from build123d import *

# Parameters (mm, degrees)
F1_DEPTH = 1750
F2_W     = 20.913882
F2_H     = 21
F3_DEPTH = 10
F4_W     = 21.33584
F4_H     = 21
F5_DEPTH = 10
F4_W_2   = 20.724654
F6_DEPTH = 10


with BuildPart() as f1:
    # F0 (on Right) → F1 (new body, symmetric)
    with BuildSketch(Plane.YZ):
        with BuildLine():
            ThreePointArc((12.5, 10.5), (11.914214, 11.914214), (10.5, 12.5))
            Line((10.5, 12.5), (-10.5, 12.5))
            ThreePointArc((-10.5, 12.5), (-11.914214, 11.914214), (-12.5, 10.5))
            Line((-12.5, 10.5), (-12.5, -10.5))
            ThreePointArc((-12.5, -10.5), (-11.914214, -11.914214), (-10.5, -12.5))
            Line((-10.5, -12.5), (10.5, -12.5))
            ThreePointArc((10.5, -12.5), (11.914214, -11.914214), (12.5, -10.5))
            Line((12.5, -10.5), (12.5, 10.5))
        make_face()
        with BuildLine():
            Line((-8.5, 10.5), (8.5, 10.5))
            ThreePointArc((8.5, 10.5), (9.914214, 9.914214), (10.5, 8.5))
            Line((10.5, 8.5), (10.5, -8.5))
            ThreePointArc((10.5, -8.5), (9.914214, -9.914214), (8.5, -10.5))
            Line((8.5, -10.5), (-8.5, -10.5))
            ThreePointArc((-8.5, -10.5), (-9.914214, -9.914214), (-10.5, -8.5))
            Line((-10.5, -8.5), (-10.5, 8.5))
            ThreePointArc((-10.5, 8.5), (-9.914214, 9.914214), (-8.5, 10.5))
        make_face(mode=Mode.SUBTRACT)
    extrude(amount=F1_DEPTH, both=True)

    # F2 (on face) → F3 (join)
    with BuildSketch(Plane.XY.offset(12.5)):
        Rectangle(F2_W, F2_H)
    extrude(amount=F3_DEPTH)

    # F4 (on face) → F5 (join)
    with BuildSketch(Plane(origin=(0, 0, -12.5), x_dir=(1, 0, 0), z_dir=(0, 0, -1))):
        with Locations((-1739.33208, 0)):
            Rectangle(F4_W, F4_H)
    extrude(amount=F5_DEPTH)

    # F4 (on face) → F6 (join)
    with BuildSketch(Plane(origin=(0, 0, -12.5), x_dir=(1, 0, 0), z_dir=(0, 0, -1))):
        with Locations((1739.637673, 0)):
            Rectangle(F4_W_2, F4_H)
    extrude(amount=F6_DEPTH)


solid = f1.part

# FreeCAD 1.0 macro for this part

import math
import FreeCAD as App
import Part
import Sketcher

V = App.Vector

doc = App.newDocument("Part")
params = doc.addObject("Spreadsheet::Sheet", "Params")
for row, (alias, value) in enumerate([
    ("sketch1_radius", "1.999999 mm"),
    ("sketch1_width", "21 mm"),
    ("pad1_length", "3500 mm"),
    ("sketch2_height", "21 mm"),
    ("pad2_length", "10 mm"),
    ("sketch3_height", "21 mm"),
    ("pad3_length", "10 mm"),
    ("sketch4_height", "21 mm"),
    ("pad4_length", "10 mm"),
], start=1):
    params.set(f"A{row}", alias)
    params.set(f"B{row}", "=" + value)
    params.setAlias(f"B{row}", alias)

body = doc.addObject("PartDesign::Body", "Body")

sketch1 = doc.addObject("Sketcher::SketchObject", "Sketch")
body.addObject(sketch1)
sketch1.AttachmentSupport = (doc.YZ_Plane, [""])
sketch1.MapMode = "FlatFace"
sketch1.addGeometry(Part.ArcOfCircle(Part.Circle(V(10.500001, 10.500001, 0), V(0, 0, 1), 1.999999), math.radians(-0.000043), math.radians(90.000043)), False)
sketch1.addGeometry(Part.LineSegment(V(10.5, 12.5, 0), V(-10.5, 12.5, 0)), False)
sketch1.addGeometry(Part.ArcOfCircle(Part.Circle(V(-10.500001, 10.500001, 0), V(0, 0, 1), 1.999999), math.radians(89.999957), math.radians(180.000043)), False)
sketch1.addGeometry(Part.LineSegment(V(-12.5, 10.5, 0), V(-12.5, -10.5, 0)), False)
sketch1.addGeometry(Part.ArcOfCircle(Part.Circle(V(-10.500001, -10.500001, 0), V(0, 0, 1), 1.999999), math.radians(179.999957), math.radians(270.000043)), False)
sketch1.addGeometry(Part.LineSegment(V(-10.5, -12.5, 0), V(10.5, -12.5, 0)), False)
sketch1.addGeometry(Part.ArcOfCircle(Part.Circle(V(10.500001, -10.500001, 0), V(0, 0, 1), 1.999999), math.radians(-90.000043), math.radians(0.000043)), False)
sketch1.addGeometry(Part.LineSegment(V(12.5, -10.5, 0), V(12.5, 10.5, 0)), False)
sketch1.addGeometry(Part.ArcOfCircle(Part.Circle(V(-8.500001, 8.500001, 0), V(0, 0, 1), 1.999999), math.radians(89.999957), math.radians(180.000043)), False)
sketch1.addGeometry(Part.LineSegment(V(-8.5, 10.5, 0), V(8.5, 10.5, 0)), False)
sketch1.addGeometry(Part.ArcOfCircle(Part.Circle(V(8.500001, 8.500001, 0), V(0, 0, 1), 1.999999), math.radians(-0.000043), math.radians(90.000043)), False)
sketch1.addGeometry(Part.LineSegment(V(10.5, 8.5, 0), V(10.5, -8.5, 0)), False)
sketch1.addGeometry(Part.ArcOfCircle(Part.Circle(V(8.500001, -8.500001, 0), V(0, 0, 1), 1.999999), math.radians(-90.000043), math.radians(0.000043)), False)
sketch1.addGeometry(Part.LineSegment(V(8.5, -10.5, 0), V(-8.5, -10.5, 0)), False)
sketch1.addGeometry(Part.ArcOfCircle(Part.Circle(V(-8.500001, -8.500001, 0), V(0, 0, 1), 1.999999), math.radians(179.999957), math.radians(270.000043)), False)
sketch1.addGeometry(Part.LineSegment(V(-10.5, -8.5, 0), V(-10.5, 8.5, 0)), False)
sketch1.addConstraint(Sketcher.Constraint("Tangent", 0, 2, 1, 1))
sketch1.addConstraint(Sketcher.Constraint("Tangent", 1, 2, 2, 1))
sketch1.addConstraint(Sketcher.Constraint("Tangent", 2, 2, 3, 1))
sketch1.addConstraint(Sketcher.Constraint("Tangent", 3, 2, 4, 1))
sketch1.addConstraint(Sketcher.Constraint("Tangent", 4, 2, 5, 1))
sketch1.addConstraint(Sketcher.Constraint("Tangent", 5, 2, 6, 1))
sketch1.addConstraint(Sketcher.Constraint("Tangent", 6, 2, 7, 1))
sketch1.addConstraint(Sketcher.Constraint("Tangent", 7, 2, 0, 1))
sketch1.addConstraint(Sketcher.Constraint("Tangent", 8, 1, 9, 1))
sketch1.addConstraint(Sketcher.Constraint("Tangent", 9, 2, 10, 2))
sketch1.addConstraint(Sketcher.Constraint("Tangent", 10, 1, 11, 1))
sketch1.addConstraint(Sketcher.Constraint("Tangent", 11, 2, 12, 2))
sketch1.addConstraint(Sketcher.Constraint("Tangent", 12, 1, 13, 1))
sketch1.addConstraint(Sketcher.Constraint("Tangent", 13, 2, 14, 2))
sketch1.addConstraint(Sketcher.Constraint("Tangent", 14, 1, 15, 1))
sketch1.addConstraint(Sketcher.Constraint("Tangent", 15, 2, 8, 2))
sketch1.addConstraint(Sketcher.Constraint("Horizontal", 1))
sketch1.addConstraint(Sketcher.Constraint("Vertical", 3))
sketch1.addConstraint(Sketcher.Constraint("Horizontal", 5))
sketch1.addConstraint(Sketcher.Constraint("Vertical", 7))
sketch1.addConstraint(Sketcher.Constraint("Horizontal", 9))
sketch1.addConstraint(Sketcher.Constraint("Vertical", 11))
sketch1.addConstraint(Sketcher.Constraint("Horizontal", 13))
sketch1.addConstraint(Sketcher.Constraint("Vertical", 15))
sketch1.addConstraint(Sketcher.Constraint("Equal", 0, 2))
sketch1.addConstraint(Sketcher.Constraint("Equal", 2, 4))
sketch1.addConstraint(Sketcher.Constraint("Equal", 4, 6))
sketch1.addConstraint(Sketcher.Constraint("Equal", 6, 8))
sketch1.addConstraint(Sketcher.Constraint("Equal", 8, 10))
sketch1.addConstraint(Sketcher.Constraint("Equal", 10, 12))
sketch1.addConstraint(Sketcher.Constraint("Equal", 12, 14))
sketch1.addConstraint(Sketcher.Constraint("Symmetric", 0, 3, 4, 3, -1, 1))
sketch1.addConstraint(Sketcher.Constraint("Symmetric", 8, 3, 12, 3, -1, 1))
sketch1.addConstraint(Sketcher.Constraint("Horizontal", 7, 2, 8, 1))
sketch1.addConstraint(Sketcher.Constraint("Vertical", 5, 2, 10, 1))
sketch1.addConstraint(Sketcher.Constraint("Equal", 5, 3))
sketch1.addConstraint(Sketcher.Constraint("Radius", 0, 1.999999))
sketch1.addConstraint(Sketcher.Constraint("DistanceX", 1, 2, 1, 1, 21.0))
sketch1.setExpression("Constraints[36]", "Params.sketch1_radius")
sketch1.setExpression("Constraints[37]", "Params.sketch1_width")
pad1 = doc.addObject("PartDesign::Pad", "Pad")
body.addObject(pad1)
pad1.Profile = sketch1
pad1.setExpression("Length", "Params.pad1_length")
pad1.Midplane = True

sketch2 = doc.addObject("Sketcher::SketchObject", "Sketch001")
body.addObject(sketch2)
sketch2.AttachmentSupport = (doc.XY_Plane, [""])
sketch2.MapMode = "FlatFace"
sketch2.AttachmentOffset = App.Placement(V(0, 0, 12.5), App.Rotation())
sketch2.addGeometry(Part.LineSegment(V(-10.456941, 10.5, 0), V(-10.456941, -10.5, 0)), False)
sketch2.addGeometry(Part.LineSegment(V(-10.456941, -10.5, 0), V(10.456941, -10.5, 0)), False)
sketch2.addGeometry(Part.LineSegment(V(10.456941, -10.5, 0), V(10.456941, 10.5, 0)), False)
sketch2.addGeometry(Part.LineSegment(V(10.456941, 10.5, 0), V(-10.456941, 10.5, 0)), False)
sketch2.addConstraint(Sketcher.Constraint("Coincident", 0, 2, 1, 1))
sketch2.addConstraint(Sketcher.Constraint("Coincident", 1, 2, 2, 1))
sketch2.addConstraint(Sketcher.Constraint("Coincident", 2, 2, 3, 1))
sketch2.addConstraint(Sketcher.Constraint("Coincident", 3, 2, 0, 1))
sketch2.addConstraint(Sketcher.Constraint("Vertical", 0))
sketch2.addConstraint(Sketcher.Constraint("Horizontal", 1))
sketch2.addConstraint(Sketcher.Constraint("Vertical", 2))
sketch2.addConstraint(Sketcher.Constraint("Horizontal", 3))
sketch2.addConstraint(Sketcher.Constraint("Symmetric", 0, 2, 2, 2, -1, 1))
sketch2.addConstraint(Sketcher.Constraint("DistanceY", 0, 2, 0, 1, 21.0))
sketch2.addConstraint(Sketcher.Constraint("DistanceX", 1, 1, 1, 2, 20.913882))
sketch2.setExpression("Constraints[9]", "Params.sketch2_height")
pad2 = doc.addObject("PartDesign::Pad", "Pad001")
body.addObject(pad2)
pad2.Profile = sketch2
pad2.setExpression("Length", "Params.pad2_length")

sketch3 = doc.addObject("Sketcher::SketchObject", "Sketch002")
body.addObject(sketch3)
sketch3.AttachmentSupport = (doc.XY_Plane, [""])
sketch3.MapMode = "FlatFace"
sketch3.AttachmentOffset = App.Placement(V(0, 0, -12.5), App.Rotation())
sketch3.addGeometry(Part.LineSegment(V(-1750, -10.5, 0), V(-1750, 10.5, 0)), False)
sketch3.addGeometry(Part.LineSegment(V(-1750, 10.5, 0), V(-1728.66416, 10.5, 0)), False)
sketch3.addGeometry(Part.LineSegment(V(-1728.66416, 10.5, 0), V(-1728.66416, -10.5, 0)), False)
sketch3.addGeometry(Part.LineSegment(V(-1728.66416, -10.5, 0), V(-1750, -10.5, 0)), False)
sketch3.addConstraint(Sketcher.Constraint("Coincident", 0, 2, 1, 1))
sketch3.addConstraint(Sketcher.Constraint("Coincident", 1, 2, 2, 1))
sketch3.addConstraint(Sketcher.Constraint("Coincident", 2, 2, 3, 1))
sketch3.addConstraint(Sketcher.Constraint("Coincident", 3, 2, 0, 1))
sketch3.addConstraint(Sketcher.Constraint("Vertical", 0))
sketch3.addConstraint(Sketcher.Constraint("Horizontal", 1))
sketch3.addConstraint(Sketcher.Constraint("Vertical", 2))
sketch3.addConstraint(Sketcher.Constraint("Horizontal", 3))
sketch3.addConstraint(Sketcher.Constraint("DistanceY", 0, 1, 0, 2, 21.0))
sketch3.addConstraint(Sketcher.Constraint("DistanceX", 0, 2, -1, 1, 1750.0))
sketch3.addConstraint(Sketcher.Constraint("DistanceY", -1, 1, 0, 2, 10.5))
sketch3.addConstraint(Sketcher.Constraint("DistanceX", 1, 1, 1, 2, 21.33584))
sketch3.setExpression("Constraints[8]", "Params.sketch3_height")
pad3 = doc.addObject("PartDesign::Pad", "Pad002")
body.addObject(pad3)
pad3.Profile = sketch3
pad3.setExpression("Length", "Params.pad3_length")
pad3.Reversed = True

sketch4 = doc.addObject("Sketcher::SketchObject", "Sketch003")
body.addObject(sketch4)
sketch4.AttachmentSupport = (doc.XY_Plane, [""])
sketch4.MapMode = "FlatFace"
sketch4.AttachmentOffset = App.Placement(V(0, 0, -12.5), App.Rotation())
sketch4.addGeometry(Part.LineSegment(V(1729.275346, -10.5, 0), V(1729.275346, 10.5, 0)), False)
sketch4.addGeometry(Part.LineSegment(V(1729.275346, 10.5, 0), V(1750, 10.5, 0)), False)
sketch4.addGeometry(Part.LineSegment(V(1750, 10.5, 0), V(1750, -10.5, 0)), False)
sketch4.addGeometry(Part.LineSegment(V(1750, -10.5, 0), V(1729.275346, -10.5, 0)), False)
sketch4.addConstraint(Sketcher.Constraint("Coincident", 0, 2, 1, 1))
sketch4.addConstraint(Sketcher.Constraint("Coincident", 1, 2, 2, 1))
sketch4.addConstraint(Sketcher.Constraint("Coincident", 2, 2, 3, 1))
sketch4.addConstraint(Sketcher.Constraint("Coincident", 3, 2, 0, 1))
sketch4.addConstraint(Sketcher.Constraint("Vertical", 0))
sketch4.addConstraint(Sketcher.Constraint("Horizontal", 1))
sketch4.addConstraint(Sketcher.Constraint("Vertical", 2))
sketch4.addConstraint(Sketcher.Constraint("Horizontal", 3))
sketch4.addConstraint(Sketcher.Constraint("DistanceY", 0, 1, 0, 2, 21.0))
sketch4.addConstraint(Sketcher.Constraint("DistanceX", -1, 1, 1, 2, 1750.0))
sketch4.addConstraint(Sketcher.Constraint("DistanceY", -1, 1, 0, 2, 10.5))
sketch4.addConstraint(Sketcher.Constraint("DistanceX", 1, 1, 1, 2, 20.724654))
sketch4.setExpression("Constraints[8]", "Params.sketch4_height")
pad4 = doc.addObject("PartDesign::Pad", "Pad003")
body.addObject(pad4)
pad4.Profile = sketch4
pad4.setExpression("Length", "Params.pad4_length")
pad4.Reversed = True

doc.recompute()
